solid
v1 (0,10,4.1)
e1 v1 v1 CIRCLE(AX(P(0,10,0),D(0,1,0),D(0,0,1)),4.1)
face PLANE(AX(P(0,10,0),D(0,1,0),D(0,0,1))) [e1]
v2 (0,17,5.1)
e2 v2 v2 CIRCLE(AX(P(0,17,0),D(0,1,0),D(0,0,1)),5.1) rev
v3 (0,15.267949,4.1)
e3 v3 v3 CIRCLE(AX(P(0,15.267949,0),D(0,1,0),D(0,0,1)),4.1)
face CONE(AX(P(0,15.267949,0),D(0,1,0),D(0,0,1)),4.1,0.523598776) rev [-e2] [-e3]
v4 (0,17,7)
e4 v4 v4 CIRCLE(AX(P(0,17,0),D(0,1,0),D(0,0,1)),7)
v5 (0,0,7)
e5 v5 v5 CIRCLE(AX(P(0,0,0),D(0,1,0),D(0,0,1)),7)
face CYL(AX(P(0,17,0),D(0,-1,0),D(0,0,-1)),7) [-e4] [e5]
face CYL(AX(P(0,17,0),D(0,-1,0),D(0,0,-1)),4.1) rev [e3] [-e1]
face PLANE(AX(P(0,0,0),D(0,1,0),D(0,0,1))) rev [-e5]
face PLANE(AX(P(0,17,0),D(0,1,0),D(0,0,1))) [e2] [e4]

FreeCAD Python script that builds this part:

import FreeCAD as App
import Part
import Sketcher


def edges_at(feature, points):
    """Names of the edges that pass closest to the given points."""
    edges = feature.Shape.Edges
    near = lambda p: min(range(len(edges)), key=lambda i: edges[i].distToShape(Part.Vertex(*p))[0])
    return sorted({f"Edge{near(p) + 1}" for p in points})

doc = App.newDocument("Part")
body = doc.addObject("PartDesign::Body", "Body")

sketch1 = body.newObject("Sketcher::SketchObject", "Sketch")
sketch1.AttachmentSupport = (doc.getObject("XZ_Plane"), [""])
sketch1.MapMode = "FlatFace"
sketch1.addGeometry([
    Part.Circle(App.Vector(0, 0, 0), App.Vector(0, 0, 1), 7),
    Part.Circle(App.Vector(0, 0, 0), App.Vector(0, 0, 1), 4.1),
], False)
sketch1.addConstraint([
    Sketcher.Constraint("Coincident", 0, 3, -1, 1),
    Sketcher.Constraint("Coincident", 1, 3, -1, 1),
    Sketcher.Constraint("Diameter", 0, 14.0),
    Sketcher.Constraint("Diameter", 1, 8.2),
])
pad1 = body.newObject("PartDesign::Pad", "Pad")
pad1.Profile = sketch1
pad1.Length = 17
pad1.Reversed = True

sketch2 = body.newObject("Sketcher::SketchObject", "Sketch001")
sketch2.AttachmentSupport = (doc.getObject("XZ_Plane"), [""])
sketch2.MapMode = "FlatFace"
sketch2.addGeometry(Part.Circle(App.Vector(0, 0, 0), App.Vector(0, 0, 1), 7), False)
sketch2.addConstraint([
    Sketcher.Constraint("Coincident", 0, 3, -1, 1),
    Sketcher.Constraint("Diameter", 0, 14.0),
])
pad2 = body.newObject("PartDesign::Pad", "Pad001")
pad2.Profile = sketch2
pad2.Length = 10
pad2.Reversed = True
doc.recompute()

chamfer = body.newObject("PartDesign::Chamfer", "Chamfer")
chamfer.Base = (pad2, edges_at(pad2, [(0, 17, -4.1)]))
chamfer.ChamferType = "Two distances"
chamfer.Size = 1
chamfer.Size2 = 1.732051

doc.recompute()
